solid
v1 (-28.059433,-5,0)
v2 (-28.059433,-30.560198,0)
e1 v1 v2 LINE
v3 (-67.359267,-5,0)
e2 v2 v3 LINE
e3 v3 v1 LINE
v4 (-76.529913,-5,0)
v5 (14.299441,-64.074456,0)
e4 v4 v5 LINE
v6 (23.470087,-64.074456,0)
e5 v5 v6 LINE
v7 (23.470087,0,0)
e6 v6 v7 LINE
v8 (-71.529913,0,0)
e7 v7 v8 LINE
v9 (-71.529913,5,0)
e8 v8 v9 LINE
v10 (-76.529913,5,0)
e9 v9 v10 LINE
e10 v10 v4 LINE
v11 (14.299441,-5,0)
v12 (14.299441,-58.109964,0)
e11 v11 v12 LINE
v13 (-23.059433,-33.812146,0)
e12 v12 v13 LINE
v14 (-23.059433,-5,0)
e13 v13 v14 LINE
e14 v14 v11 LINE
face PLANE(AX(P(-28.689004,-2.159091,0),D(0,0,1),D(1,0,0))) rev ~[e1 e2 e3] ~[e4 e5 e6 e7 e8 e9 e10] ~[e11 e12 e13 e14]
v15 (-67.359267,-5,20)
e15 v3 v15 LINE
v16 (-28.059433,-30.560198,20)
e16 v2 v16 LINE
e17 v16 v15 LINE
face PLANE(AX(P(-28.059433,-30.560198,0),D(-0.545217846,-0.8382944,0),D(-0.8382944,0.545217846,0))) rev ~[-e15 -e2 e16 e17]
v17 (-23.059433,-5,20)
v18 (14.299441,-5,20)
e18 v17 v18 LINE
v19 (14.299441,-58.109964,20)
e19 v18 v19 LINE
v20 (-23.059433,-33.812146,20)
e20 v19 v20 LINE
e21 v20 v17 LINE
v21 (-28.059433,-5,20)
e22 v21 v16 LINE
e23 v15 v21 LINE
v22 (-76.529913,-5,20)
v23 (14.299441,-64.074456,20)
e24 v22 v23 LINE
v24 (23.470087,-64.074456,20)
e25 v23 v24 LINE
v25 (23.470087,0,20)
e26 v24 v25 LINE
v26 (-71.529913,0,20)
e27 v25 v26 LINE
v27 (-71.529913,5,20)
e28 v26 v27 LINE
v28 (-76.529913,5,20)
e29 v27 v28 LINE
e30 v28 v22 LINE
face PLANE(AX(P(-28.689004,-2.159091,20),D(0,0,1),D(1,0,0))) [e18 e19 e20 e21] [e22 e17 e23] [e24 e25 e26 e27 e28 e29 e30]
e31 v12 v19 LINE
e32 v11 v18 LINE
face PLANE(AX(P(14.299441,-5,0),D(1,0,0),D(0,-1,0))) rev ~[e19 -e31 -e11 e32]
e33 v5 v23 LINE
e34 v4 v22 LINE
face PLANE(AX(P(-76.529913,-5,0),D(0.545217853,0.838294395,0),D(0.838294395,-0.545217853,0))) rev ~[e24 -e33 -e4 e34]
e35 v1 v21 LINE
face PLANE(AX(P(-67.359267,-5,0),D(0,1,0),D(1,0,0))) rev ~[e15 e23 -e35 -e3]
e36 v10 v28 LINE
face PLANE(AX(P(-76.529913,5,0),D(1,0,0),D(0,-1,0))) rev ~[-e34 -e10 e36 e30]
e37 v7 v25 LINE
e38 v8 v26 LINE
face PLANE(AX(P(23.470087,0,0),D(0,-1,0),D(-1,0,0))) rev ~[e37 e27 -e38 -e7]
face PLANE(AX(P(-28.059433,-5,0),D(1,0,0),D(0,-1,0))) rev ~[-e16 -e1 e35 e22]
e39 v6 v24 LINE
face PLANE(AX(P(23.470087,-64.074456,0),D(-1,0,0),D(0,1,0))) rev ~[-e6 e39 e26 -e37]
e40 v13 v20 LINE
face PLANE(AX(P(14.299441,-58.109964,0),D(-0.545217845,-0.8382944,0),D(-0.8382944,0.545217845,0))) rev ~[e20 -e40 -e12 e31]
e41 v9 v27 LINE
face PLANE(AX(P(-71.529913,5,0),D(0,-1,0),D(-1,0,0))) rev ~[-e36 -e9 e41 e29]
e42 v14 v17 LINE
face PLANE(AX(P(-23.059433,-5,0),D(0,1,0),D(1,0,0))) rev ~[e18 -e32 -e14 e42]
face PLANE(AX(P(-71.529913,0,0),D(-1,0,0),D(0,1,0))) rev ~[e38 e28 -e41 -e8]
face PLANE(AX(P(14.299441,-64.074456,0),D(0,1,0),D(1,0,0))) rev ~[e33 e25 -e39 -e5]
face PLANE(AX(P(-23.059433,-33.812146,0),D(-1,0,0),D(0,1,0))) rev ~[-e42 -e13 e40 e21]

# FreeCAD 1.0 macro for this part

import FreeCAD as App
import Part
import Sketcher
from FreeCAD import Vector


def add_polygon(sketch, points):
    """Adds a closed chain of lines whose ends are joined by coincident constraints."""
    first, n = sketch.GeometryCount, len(points)
    for a, b in zip(points, points[1:] + points[:1]):
        sketch.addGeometry(Part.LineSegment(App.Vector(*a, 0), App.Vector(*b, 0)), False)
    for i in range(n):
        sketch.addConstraint(Sketcher.Constraint("Coincident", first + i, 2, first + (i + 1) % n, 1))

doc = App.newDocument("Part")
params = doc.addObject("Spreadsheet::Sheet", "Params")
for row, (alias, value) in enumerate([
    ("sketch1_width", "95 mm"),
    ("sketch1_width2", "5 mm"),
    ("sketch1_height", "10 mm"),
    ("pad1_length", "20 mm"),
], start=1):
    params.set(f"A{row}", alias)
    params.set(f"B{row}", "=" + value)
    params.setAlias(f"B{row}", alias)

body = doc.addObject("PartDesign::Body", "Body")

# Sketch on XY plane
sketch1 = body.newObject("Sketcher::SketchObject", "Sketch")
sketch1.AttachmentSupport = (doc.getObject("XY_Plane"), [""])
sketch1.MapMode = "FlatFace"
add_polygon(sketch1, [(23, 0), (-72, 0), (-72, 5), (-77, 5), (-77, -5), (14, -64), (23, -64)])  # lines 0-6
add_polygon(sketch1, [(-67, -5), (-28, -5), (-28, -31)])  # lines 7-9
add_polygon(sketch1, [(-23, -5), (14, -5), (14, -58), (-23, -34)])  # lines 10-13
sketch1.addConstraint([
    Sketcher.Constraint("Horizontal", 0),
    Sketcher.Constraint("Vertical", 1),
    Sketcher.Constraint("Horizontal", 2),
    Sketcher.Constraint("Vertical", 3),
    Sketcher.Constraint("Horizontal", 5),
    Sketcher.Constraint("Vertical", 6),
    Sketcher.Constraint("Horizontal", 7),
    Sketcher.Constraint("Vertical", 8),
    Sketcher.Constraint("Horizontal", 10),
    Sketcher.Constraint("Vertical", 11),
    Sketcher.Constraint("Vertical", 13),
    Sketcher.Constraint("PointOnObject", 0, 2, -1),
    Sketcher.Constraint("Parallel", 4, 9),
    Sketcher.Constraint("Parallel", 9, 12),
    Sketcher.Constraint("Horizontal", 3, 2, 7, 2),
    Sketcher.Constraint("Horizontal", 9, 2, 10, 2),
    Sketcher.Constraint("Vertical", 4, 2, 10, 2),
    Sketcher.Constraint("Equal", 2, 1),
    Sketcher.Constraint("DistanceX", 0, 2, 0, 1, 95.0),
    Sketcher.Constraint("DistanceX", 2, 2, 2, 1, 5.0),
    Sketcher.Constraint("DistanceY", 3, 2, 3, 1, 10.0),
    Sketcher.Constraint("DistanceX", 8, 2, 12, 2, 5.0),
    Sketcher.Constraint("DistanceY", 8, 2, 8, 1, 25.560198),
    Sketcher.Constraint("Distance", 12, 44.565339),
    Sketcher.Constraint("DistanceX", 5, 1, 5, 2, 9.170646),
    Sketcher.Constraint("DistanceX", 7, 1, 7, 2, 39.299834),
    Sketcher.Constraint("DistanceY", 11, 2, 11, 1, 53.109964),
    Sketcher.Constraint("DistanceX", -1, 1, 4, 2, 14.299441),
])
sketch1.setExpression("Constraints[32]", "Params.sketch1_width")
sketch1.setExpression("Constraints[33]", "Params.sketch1_width2")
sketch1.setExpression("Constraints[34]", "Params.sketch1_height")
pad1 = body.newObject("PartDesign::Pad", "Pad")
pad1.Profile = sketch1
pad1.setExpression("Length", "Params.pad1_length")

doc.recompute()
